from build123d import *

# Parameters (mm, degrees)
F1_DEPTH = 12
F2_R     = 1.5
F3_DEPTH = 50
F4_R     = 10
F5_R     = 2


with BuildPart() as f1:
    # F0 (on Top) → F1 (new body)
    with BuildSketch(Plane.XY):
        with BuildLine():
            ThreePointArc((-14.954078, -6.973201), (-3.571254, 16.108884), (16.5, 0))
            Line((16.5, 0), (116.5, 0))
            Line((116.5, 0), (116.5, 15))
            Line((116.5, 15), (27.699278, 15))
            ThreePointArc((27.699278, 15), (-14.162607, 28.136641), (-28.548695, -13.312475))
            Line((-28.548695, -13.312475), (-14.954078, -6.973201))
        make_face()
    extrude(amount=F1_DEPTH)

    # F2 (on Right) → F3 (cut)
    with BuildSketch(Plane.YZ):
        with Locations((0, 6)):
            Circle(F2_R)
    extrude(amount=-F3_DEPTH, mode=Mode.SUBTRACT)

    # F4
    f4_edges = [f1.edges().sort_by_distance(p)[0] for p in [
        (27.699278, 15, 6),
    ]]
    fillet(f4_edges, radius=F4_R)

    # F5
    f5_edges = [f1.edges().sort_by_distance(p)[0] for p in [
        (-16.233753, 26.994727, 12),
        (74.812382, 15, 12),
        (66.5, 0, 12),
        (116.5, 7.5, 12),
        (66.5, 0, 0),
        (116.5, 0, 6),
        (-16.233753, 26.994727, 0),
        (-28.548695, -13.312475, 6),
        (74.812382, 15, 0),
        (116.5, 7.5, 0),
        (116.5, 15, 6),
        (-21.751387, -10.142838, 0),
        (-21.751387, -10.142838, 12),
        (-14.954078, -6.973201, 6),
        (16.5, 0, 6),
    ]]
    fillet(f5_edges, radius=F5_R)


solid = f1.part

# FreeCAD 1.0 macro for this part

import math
import FreeCAD as App
import Part
import Sketcher
from FreeCAD import Vector
Q = App.Units.Quantity


def edges_at(feature, points):
    """Names of the edges that pass closest to the given points."""
    edges = feature.Shape.Edges
    near = lambda p: min(range(len(edges)), key=lambda i: edges[i].distToShape(Part.Vertex(*p))[0])
    return sorted({f"Edge{near(p) + 1}" for p in points})

doc = App.newDocument("Part")
params = doc.addObject("Spreadsheet::Sheet", "Params")
for row, (alias, value) in enumerate([
    ("sketch1_radius", "16.5 mm"),
    ("sketch1_radius2", "31.5 mm"),
    ("sketch1_width", "100 mm"),
    ("sketch1_height", "15 mm"),
    ("pad1_length", "12 mm"),
    ("sketch2_diameter", "3 mm"),
    ("pocket1_length", "50 mm"),
    ("fillet_radius", "10 mm"),
    ("fillet2_radius", "2 mm"),
], start=1):
    params.set(f"A{row}", alias)
    params.set(f"B{row}", "=" + value)
    params.setAlias(f"B{row}", alias)

body = doc.addObject("PartDesign::Body", "Body")

# Sketch on XY plane
sketch1 = body.newObject("Sketcher::SketchObject", "Sketch")
sketch1.AttachmentSupport = (doc.getObject("XY_Plane"), [""])
sketch1.MapMode = "FlatFace"
sketch1.addGeometry(Part.ArcOfCircle(Part.Circle(Vector(0, 0, 0), Vector(0, 0, 1), 16), math.radians(0), math.radians(205)), False)
sketch1.addGeometry(Part.LineSegment(Vector(16, 0, 0), Vector(116, 0, 0)), False)
sketch1.addGeometry(Part.LineSegment(Vector(116, 0, 0), Vector(116, 15, 0)), False)
sketch1.addGeometry(Part.LineSegment(Vector(116, 15, 0), Vector(28, 15, 0)), False)
sketch1.addGeometry(Part.ArcOfCircle(Part.Circle(Vector(0, 0, 0), Vector(0, 0, 1), 31), math.radians(28), math.radians(205)), False)
sketch1.addGeometry(Part.LineSegment(Vector(-29, -13, 0), Vector(-15, -7, 0)), False)
sketch1.addConstraint(Sketcher.Constraint("Coincident", 0, 1, 1, 1))
sketch1.addConstraint(Sketcher.Constraint("Coincident", 1, 2, 2, 1))
sketch1.addConstraint(Sketcher.Constraint("Coincident", 2, 2, 3, 1))
sketch1.addConstraint(Sketcher.Constraint("Coincident", 3, 2, 4, 1))
sketch1.addConstraint(Sketcher.Constraint("Coincident", 4, 2, 5, 1))
sketch1.addConstraint(Sketcher.Constraint("Coincident", 5, 2, 0, 2))
sketch1.addConstraint(Sketcher.Constraint("Horizontal", 1))
sketch1.addConstraint(Sketcher.Constraint("Vertical", 2))
sketch1.addConstraint(Sketcher.Constraint("Horizontal", 3))
sketch1.addConstraint(Sketcher.Constraint("Coincident", 0, 3, -1, 1))
sketch1.addConstraint(Sketcher.Constraint("Coincident", 4, 3, -1, 1))
sketch1.addConstraint(Sketcher.Constraint("PointOnObject", 0, 1, -1))
sketch1.addConstraint(Sketcher.Constraint("Radius", 0, Q("16.5 mm")))
sketch1.addConstraint(Sketcher.Constraint("Radius", 4, Q("31.5 mm")))
sketch1.addConstraint(Sketcher.Constraint("DistanceX", 1, 1, 1, 2, Q("100 mm")))
sketch1.addConstraint(Sketcher.Constraint("DistanceY", 2, 1, 2, 2, Q("15 mm")))
sketch1.addConstraint(Sketcher.Constraint("Angle", 5, Q("25 deg")))
sketch1.addConstraint(Sketcher.Constraint("DistanceY", 5, 2, -1, 1, Q("6.973201 mm")))
sketch1.setExpression("Constraints[12]", "Params.sketch1_radius")
sketch1.setExpression("Constraints[13]", "Params.sketch1_radius2")
sketch1.setExpression("Constraints[14]", "Params.sketch1_width")
sketch1.setExpression("Constraints[15]", "Params.sketch1_height")
pad1 = body.newObject("PartDesign::Pad", "Pad")
pad1.Profile = sketch1
pad1.setExpression("Length", "Params.pad1_length")

# Sketch on YZ plane
sketch2 = body.newObject("Sketcher::SketchObject", "Sketch001")
sketch2.AttachmentSupport = (doc.getObject("YZ_Plane"), [""])
sketch2.MapMode = "FlatFace"
sketch2.addGeometry(Part.Circle(Vector(0, 6, 0), Vector(0, 0, 1), 1.5), False)
sketch2.addConstraint(Sketcher.Constraint("PointOnObject", 0, 3, -2))
sketch2.addConstraint(Sketcher.Constraint("Diameter", 0, Q("3 mm")))
sketch2.addConstraint(Sketcher.Constraint("DistanceY", -1, 1, 0, 3, Q("6 mm")))
sketch2.setExpression("Constraints[1]", "Params.sketch2_diameter")
pocket1 = body.newObject("PartDesign::Pocket", "Pocket")
pocket1.Profile = sketch2
pocket1.setExpression("Length", "Params.pocket1_length")
doc.recompute()

fillet = body.newObject("PartDesign::Fillet", "Fillet")
fillet.Base = (pocket1, edges_at(pocket1, [(27.699, 15, 6)]))
fillet.setExpression("Radius", "Params.fillet_radius")
doc.recompute()

fillet2 = body.newObject("PartDesign::Fillet", "Fillet001")
fillet2.Base = (fillet, edges_at(fillet, [
    (-16.234, 26.995, 12),
    (74.812, 15, 12),
    (66.5, 0, 12),
    (116.5, 7.5, 12),
    (66.5, 0, 0),
    (116.5, 0, 6),
    (-16.234, 26.995, 0),
    (-28.549, -13.312, 6),
    (74.812, 15, 0),
    (116.5, 7.5, 0),
    (116.5, 15, 6),
    (-21.751, -10.143, 0),
    (-21.751, -10.143, 12),
    (-14.954, -6.973, 6),
    (16.5, 0, 6),
]))
fillet2.setExpression("Radius", "Params.fillet2_radius")

doc.recompute()
